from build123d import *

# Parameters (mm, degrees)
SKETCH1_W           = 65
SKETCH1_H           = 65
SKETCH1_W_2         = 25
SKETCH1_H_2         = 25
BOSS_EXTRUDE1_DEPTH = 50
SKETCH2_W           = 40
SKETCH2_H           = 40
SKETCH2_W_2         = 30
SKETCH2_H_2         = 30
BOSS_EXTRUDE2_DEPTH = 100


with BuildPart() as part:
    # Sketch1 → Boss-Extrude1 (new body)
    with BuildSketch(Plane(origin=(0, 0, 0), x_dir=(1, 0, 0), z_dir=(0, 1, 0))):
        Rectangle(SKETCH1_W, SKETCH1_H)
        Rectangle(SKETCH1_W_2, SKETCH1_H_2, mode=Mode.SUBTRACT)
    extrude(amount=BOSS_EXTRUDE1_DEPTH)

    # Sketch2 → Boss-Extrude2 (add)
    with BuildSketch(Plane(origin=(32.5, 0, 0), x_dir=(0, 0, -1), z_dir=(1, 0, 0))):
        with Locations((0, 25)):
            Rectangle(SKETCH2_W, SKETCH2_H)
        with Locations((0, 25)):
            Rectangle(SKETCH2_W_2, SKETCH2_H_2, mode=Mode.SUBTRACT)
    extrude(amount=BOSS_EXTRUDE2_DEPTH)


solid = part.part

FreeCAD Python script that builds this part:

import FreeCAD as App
import Part
import Sketcher

V = App.Vector

doc = App.newDocument("Part")
body = doc.addObject("PartDesign::Body", "Body")

# Sketch on XZ plane
sketch1 = body.newObject("Sketcher::SketchObject", "Sketch")
sketch1.AttachmentSupport = (doc.getObject("XZ_Plane"), [""])
sketch1.MapMode = "FlatFace"
sketch1.addGeometry(Part.LineSegment(V(-32.5, -32.5, 0), V(-32.5, 32.5, 0)), False)
sketch1.addGeometry(Part.LineSegment(V(-32.5, 32.5, 0), V(32.5, 32.5, 0)), False)
sketch1.addGeometry(Part.LineSegment(V(32.5, 32.5, 0), V(32.5, -32.5, 0)), False)
sketch1.addGeometry(Part.LineSegment(V(32.5, -32.5, 0), V(-32.5, -32.5, 0)), False)
sketch1.addGeometry(Part.LineSegment(V(12.5, 12.5, 0), V(-12.5, 12.5, 0)), False)
sketch1.addGeometry(Part.LineSegment(V(-12.5, 12.5, 0), V(-12.5, -12.5, 0)), False)
sketch1.addGeometry(Part.LineSegment(V(-12.5, -12.5, 0), V(12.5, -12.5, 0)), False)
sketch1.addGeometry(Part.LineSegment(V(12.5, -12.5, 0), V(12.5, 12.5, 0)), False)
sketch1.addConstraint(Sketcher.Constraint("Coincident", 0, 2, 1, 1))
sketch1.addConstraint(Sketcher.Constraint("Coincident", 1, 2, 2, 1))
sketch1.addConstraint(Sketcher.Constraint("Coincident", 2, 2, 3, 1))
sketch1.addConstraint(Sketcher.Constraint("Coincident", 3, 2, 0, 1))
sketch1.addConstraint(Sketcher.Constraint("Coincident", 4, 2, 5, 1))
sketch1.addConstraint(Sketcher.Constraint("Coincident", 5, 2, 6, 1))
sketch1.addConstraint(Sketcher.Constraint("Coincident", 6, 2, 7, 1))
sketch1.addConstraint(Sketcher.Constraint("Coincident", 7, 2, 4, 1))
sketch1.addConstraint(Sketcher.Constraint("Vertical", 0))
sketch1.addConstraint(Sketcher.Constraint("Horizontal", 1))
sketch1.addConstraint(Sketcher.Constraint("Vertical", 2))
sketch1.addConstraint(Sketcher.Constraint("Horizontal", 3))
sketch1.addConstraint(Sketcher.Constraint("Horizontal", 4))
sketch1.addConstraint(Sketcher.Constraint("Vertical", 5))
sketch1.addConstraint(Sketcher.Constraint("Horizontal", 6))
sketch1.addConstraint(Sketcher.Constraint("Vertical", 7))
sketch1.addConstraint(Sketcher.Constraint("Symmetric", 0, 2, 2, 2, -1, 1))
sketch1.addConstraint(Sketcher.Constraint("Symmetric", 4, 2, 6, 2, -1, 1))
sketch1.addConstraint(Sketcher.Constraint("Equal", 3, 0))
sketch1.addConstraint(Sketcher.Constraint("Equal", 6, 5))
sketch1.addConstraint(Sketcher.Constraint("DistanceX", 1, 1, 1, 2, 65.0))
sketch1.addConstraint(Sketcher.Constraint("DistanceX", 4, 2, 4, 1, 25.0))
pad1 = body.newObject("PartDesign::Pad", "Pad")
pad1.Profile = sketch1
pad1.Length = 50
pad1.Reversed = True

# Sketch on YZ plane
sketch2 = body.newObject("Sketcher::SketchObject", "Sketch001")
sketch2.AttachmentSupport = (doc.getObject("YZ_Plane"), [""])
sketch2.MapMode = "FlatFace"
sketch2.AttachmentOffset = App.Placement(V(0, 0, 32.5), App.Rotation())
sketch2.addGeometry(Part.LineSegment(V(45, 20, 0), V(5, 20, 0)), False)
sketch2.addGeometry(Part.LineSegment(V(5, 20, 0), V(5, -20, 0)), False)
sketch2.addGeometry(Part.LineSegment(V(5, -20, 0), V(45, -20, 0)), False)
sketch2.addGeometry(Part.LineSegment(V(45, -20, 0), V(45, 20, 0)), False)
sketch2.addGeometry(Part.LineSegment(V(10, -15, 0), V(10, 15, 0)), False)
sketch2.addGeometry(Part.LineSegment(V(10, 15, 0), V(40, 15, 0)), False)
sketch2.addGeometry(Part.LineSegment(V(40, 15, 0), V(40, -15, 0)), False)
sketch2.addGeometry(Part.LineSegment(V(40, -15, 0), V(10, -15, 0)), False)
sketch2.addConstraint(Sketcher.Constraint("Coincident", 0, 2, 1, 1))
sketch2.addConstraint(Sketcher.Constraint("Coincident", 1, 2, 2, 1))
sketch2.addConstraint(Sketcher.Constraint("Coincident", 2, 2, 3, 1))
sketch2.addConstraint(Sketcher.Constraint("Coincident", 3, 2, 0, 1))
sketch2.addConstraint(Sketcher.Constraint("Coincident", 4, 2, 5, 1))
sketch2.addConstraint(Sketcher.Constraint("Coincident", 5, 2, 6, 1))
sketch2.addConstraint(Sketcher.Constraint("Coincident", 6, 2, 7, 1))
sketch2.addConstraint(Sketcher.Constraint("Coincident", 7, 2, 4, 1))
sketch2.addConstraint(Sketcher.Constraint("Horizontal", 0))
sketch2.addConstraint(Sketcher.Constraint("Vertical", 1))
sketch2.addConstraint(Sketcher.Constraint("Horizontal", 2))
sketch2.addConstraint(Sketcher.Constraint("Vertical", 3))
sketch2.addConstraint(Sketcher.Constraint("Vertical", 4))
sketch2.addConstraint(Sketcher.Constraint("Horizontal", 5))
sketch2.addConstraint(Sketcher.Constraint("Vertical", 6))
sketch2.addConstraint(Sketcher.Constraint("Horizontal", 7))
sketch2.addConstraint(Sketcher.Constraint("Equal", 2, 1))
sketch2.addConstraint(Sketcher.Constraint("Equal", 7, 4))
sketch2.addConstraint(Sketcher.Constraint("DistanceX", 0, 2, 0, 1, 40.0))
sketch2.addConstraint(Sketcher.Constraint("DistanceX", 5, 1, 5, 2, 30.0))
sketch2.addConstraint(Sketcher.Constraint("DistanceX", -1, 1, 0, 2, 5.0))
sketch2.addConstraint(Sketcher.Constraint("DistanceY", -1, 1, 0, 2, 20.0))
sketch2.addConstraint(Sketcher.Constraint("DistanceX", -1, 1, 4, 2, 10.0))
sketch2.addConstraint(Sketcher.Constraint("DistanceY", -1, 1, 4, 2, 15.0))
pad2 = body.newObject("PartDesign::Pad", "Pad001")
pad2.Profile = sketch2
pad2.Length = 100

doc.recompute()
